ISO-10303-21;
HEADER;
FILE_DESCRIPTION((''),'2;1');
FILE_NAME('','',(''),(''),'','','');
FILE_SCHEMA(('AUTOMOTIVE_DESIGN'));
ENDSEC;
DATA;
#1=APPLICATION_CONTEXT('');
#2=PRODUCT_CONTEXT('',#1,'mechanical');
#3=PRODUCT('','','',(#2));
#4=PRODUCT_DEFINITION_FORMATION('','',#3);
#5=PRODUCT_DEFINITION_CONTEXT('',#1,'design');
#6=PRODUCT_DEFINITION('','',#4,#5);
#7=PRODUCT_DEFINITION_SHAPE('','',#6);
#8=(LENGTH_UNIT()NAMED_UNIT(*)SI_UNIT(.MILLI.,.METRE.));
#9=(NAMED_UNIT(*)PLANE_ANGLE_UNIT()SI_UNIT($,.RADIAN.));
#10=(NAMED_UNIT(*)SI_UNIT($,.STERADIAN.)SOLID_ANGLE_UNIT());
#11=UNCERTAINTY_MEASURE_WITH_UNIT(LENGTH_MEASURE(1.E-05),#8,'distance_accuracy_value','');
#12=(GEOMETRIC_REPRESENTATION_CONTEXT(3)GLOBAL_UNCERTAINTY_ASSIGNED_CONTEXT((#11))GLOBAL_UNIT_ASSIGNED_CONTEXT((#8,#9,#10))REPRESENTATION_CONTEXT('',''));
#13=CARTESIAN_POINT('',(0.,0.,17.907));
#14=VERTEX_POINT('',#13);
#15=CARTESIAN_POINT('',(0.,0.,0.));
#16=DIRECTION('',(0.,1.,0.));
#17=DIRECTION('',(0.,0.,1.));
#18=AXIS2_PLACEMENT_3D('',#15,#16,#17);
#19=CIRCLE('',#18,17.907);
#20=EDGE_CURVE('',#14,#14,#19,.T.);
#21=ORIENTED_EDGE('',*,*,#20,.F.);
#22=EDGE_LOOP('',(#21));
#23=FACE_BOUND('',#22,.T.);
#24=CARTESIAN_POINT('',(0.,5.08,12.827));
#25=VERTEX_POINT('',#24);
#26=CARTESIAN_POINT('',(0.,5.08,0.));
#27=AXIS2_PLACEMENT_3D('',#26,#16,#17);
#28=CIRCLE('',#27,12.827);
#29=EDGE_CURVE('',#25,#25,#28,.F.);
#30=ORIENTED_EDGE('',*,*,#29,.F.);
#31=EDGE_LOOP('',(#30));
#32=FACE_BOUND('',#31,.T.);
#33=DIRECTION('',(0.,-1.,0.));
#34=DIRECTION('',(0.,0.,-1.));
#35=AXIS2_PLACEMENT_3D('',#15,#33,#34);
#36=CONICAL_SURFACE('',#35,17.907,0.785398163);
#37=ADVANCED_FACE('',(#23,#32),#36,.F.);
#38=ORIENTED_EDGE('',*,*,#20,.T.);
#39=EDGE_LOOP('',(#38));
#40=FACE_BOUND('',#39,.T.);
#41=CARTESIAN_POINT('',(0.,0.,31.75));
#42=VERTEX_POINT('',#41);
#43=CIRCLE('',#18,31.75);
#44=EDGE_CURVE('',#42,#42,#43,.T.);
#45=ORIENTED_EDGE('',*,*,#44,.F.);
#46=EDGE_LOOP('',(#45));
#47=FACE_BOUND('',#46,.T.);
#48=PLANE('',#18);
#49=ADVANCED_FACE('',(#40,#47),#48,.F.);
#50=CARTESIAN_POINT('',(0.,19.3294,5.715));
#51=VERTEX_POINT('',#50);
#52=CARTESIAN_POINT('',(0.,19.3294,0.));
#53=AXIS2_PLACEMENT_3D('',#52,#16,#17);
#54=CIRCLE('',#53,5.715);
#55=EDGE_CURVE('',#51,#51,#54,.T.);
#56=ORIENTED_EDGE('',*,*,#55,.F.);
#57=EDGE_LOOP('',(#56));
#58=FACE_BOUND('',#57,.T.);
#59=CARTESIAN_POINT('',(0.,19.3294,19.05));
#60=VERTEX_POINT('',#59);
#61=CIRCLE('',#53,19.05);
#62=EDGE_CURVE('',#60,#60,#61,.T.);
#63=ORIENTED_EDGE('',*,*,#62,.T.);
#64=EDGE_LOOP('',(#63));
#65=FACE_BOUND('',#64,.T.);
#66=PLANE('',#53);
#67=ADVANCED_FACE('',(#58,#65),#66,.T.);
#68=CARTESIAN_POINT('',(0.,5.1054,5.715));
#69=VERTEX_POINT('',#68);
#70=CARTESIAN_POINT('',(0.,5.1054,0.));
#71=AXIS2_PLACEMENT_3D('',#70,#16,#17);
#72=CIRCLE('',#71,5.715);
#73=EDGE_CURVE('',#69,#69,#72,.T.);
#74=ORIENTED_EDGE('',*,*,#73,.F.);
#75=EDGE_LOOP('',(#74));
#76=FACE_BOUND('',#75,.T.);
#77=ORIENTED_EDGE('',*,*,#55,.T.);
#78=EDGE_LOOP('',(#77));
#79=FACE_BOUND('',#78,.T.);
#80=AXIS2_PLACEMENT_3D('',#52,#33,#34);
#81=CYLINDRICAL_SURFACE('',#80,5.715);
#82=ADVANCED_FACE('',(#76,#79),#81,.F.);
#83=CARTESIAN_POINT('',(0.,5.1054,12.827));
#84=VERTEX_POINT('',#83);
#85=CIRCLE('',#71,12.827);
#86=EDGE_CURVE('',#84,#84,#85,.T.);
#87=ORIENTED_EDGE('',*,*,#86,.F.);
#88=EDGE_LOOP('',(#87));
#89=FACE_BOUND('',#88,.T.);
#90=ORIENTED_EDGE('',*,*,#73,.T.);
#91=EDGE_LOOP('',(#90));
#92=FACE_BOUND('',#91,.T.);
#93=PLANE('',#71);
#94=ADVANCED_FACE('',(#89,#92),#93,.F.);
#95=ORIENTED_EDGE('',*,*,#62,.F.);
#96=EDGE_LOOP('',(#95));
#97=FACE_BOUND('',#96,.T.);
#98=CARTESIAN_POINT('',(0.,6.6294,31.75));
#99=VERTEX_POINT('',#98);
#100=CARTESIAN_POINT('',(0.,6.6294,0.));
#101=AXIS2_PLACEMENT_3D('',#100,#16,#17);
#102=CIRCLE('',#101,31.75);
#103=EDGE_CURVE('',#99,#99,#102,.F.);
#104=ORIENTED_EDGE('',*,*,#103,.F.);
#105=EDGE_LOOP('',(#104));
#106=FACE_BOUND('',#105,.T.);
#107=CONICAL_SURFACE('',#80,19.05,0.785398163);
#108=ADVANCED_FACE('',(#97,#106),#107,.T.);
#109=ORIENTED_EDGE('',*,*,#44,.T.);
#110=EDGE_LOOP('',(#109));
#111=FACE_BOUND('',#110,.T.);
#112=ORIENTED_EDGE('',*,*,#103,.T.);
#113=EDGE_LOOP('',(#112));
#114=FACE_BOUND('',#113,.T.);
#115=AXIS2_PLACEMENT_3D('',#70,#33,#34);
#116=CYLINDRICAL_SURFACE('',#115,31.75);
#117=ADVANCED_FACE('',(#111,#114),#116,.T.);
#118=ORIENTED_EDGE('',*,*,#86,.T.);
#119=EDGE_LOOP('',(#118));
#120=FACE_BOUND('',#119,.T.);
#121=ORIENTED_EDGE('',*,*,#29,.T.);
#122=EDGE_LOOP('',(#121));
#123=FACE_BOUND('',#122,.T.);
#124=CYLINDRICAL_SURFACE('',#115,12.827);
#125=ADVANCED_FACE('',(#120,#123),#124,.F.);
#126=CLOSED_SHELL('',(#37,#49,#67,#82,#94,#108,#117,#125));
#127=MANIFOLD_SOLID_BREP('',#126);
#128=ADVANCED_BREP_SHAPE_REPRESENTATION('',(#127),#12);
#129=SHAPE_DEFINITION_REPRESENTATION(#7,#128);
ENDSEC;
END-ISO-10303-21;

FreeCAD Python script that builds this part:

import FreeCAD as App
import Part
import Sketcher
Q = App.Units.Quantity


def edges_at(feature, points):
    """Names of the edges that pass closest to the given points."""
    edges = feature.Shape.Edges
    near = lambda p: min(range(len(edges)), key=lambda i: edges[i].distToShape(Part.Vertex(*p))[0])
    return sorted({f"Edge{near(p) + 1}" for p in points})

doc = App.newDocument("Part")
body = doc.addObject("PartDesign::Body", "Body")

sketch1 = doc.addObject("Sketcher::SketchObject", "Sketch")
body.addObject(sketch1)
sketch1.AttachmentSupport = (doc.XZ_Plane, [""])
sketch1.MapMode = "FlatFace"
sketch1.addGeometry([
    Part.Circle(App.Vector(0, 0, 0), App.Vector(0, 0, 1), 31.75),
    Part.Circle(App.Vector(0, 0, 0), App.Vector(0, 0, 1), 12.827),
], False)
sketch1.addConstraint([
    Sketcher.Constraint("Coincident", 0, 3, -1, 1),
    Sketcher.Constraint("Coincident", 1, 3, -1, 1),
    Sketcher.Constraint("Diameter", 0, Q("2.5 in")),
    Sketcher.Constraint("Diameter", 1, Q("1.01 in")),
])
pad1 = doc.addObject("PartDesign::Pad", "Pad")
body.addObject(pad1)
pad1.Profile = sketch1
pad1.Length = Q("0.201 in")
pad1.Reversed = True

sketch2 = doc.addObject("Sketcher::SketchObject", "Sketch001")
body.addObject(sketch2)
sketch2.AttachmentSupport = (doc.XZ_Plane, [""])
sketch2.MapMode = "FlatFace"
sketch2.AttachmentOffset = App.Placement(App.Vector(0, 0, -0.201 * 25.4), App.Rotation())
sketch2.addGeometry([
    Part.Circle(App.Vector(0, 0, 0), App.Vector(0, 0, 1), 31.75),
    Part.Circle(App.Vector(0, 0, 0), App.Vector(0, 0, 1), 5.715),
], False)
sketch2.addConstraint([
    Sketcher.Constraint("Coincident", 0, 3, -1, 1),
    Sketcher.Constraint("Coincident", 1, 3, -1, 1),
    Sketcher.Constraint("Diameter", 0, Q("2.5 in")),
    Sketcher.Constraint("Diameter", 1, Q("0.45 in")),
])
pad2 = doc.addObject("PartDesign::Pad", "Pad001")
body.addObject(pad2)
pad2.Profile = sketch2
pad2.Length = Q("0.56 in")
pad2.Reversed = True
doc.recompute()

chamfer = doc.addObject("PartDesign::Chamfer", "Chamfer")
body.addObject(chamfer)
chamfer.Base = (pad2, edges_at(pad2, [(-12.827, 0, 0)]))
chamfer.Size = Q("0.2 in")
doc.recompute()

chamfer2 = doc.addObject("PartDesign::Chamfer", "Chamfer001")
body.addObject(chamfer2)
chamfer2.Base = (chamfer, edges_at(chamfer, [(-31.75, 19.329, 0)]))
chamfer2.Size = Q("0.5 in")

doc.recompute()
